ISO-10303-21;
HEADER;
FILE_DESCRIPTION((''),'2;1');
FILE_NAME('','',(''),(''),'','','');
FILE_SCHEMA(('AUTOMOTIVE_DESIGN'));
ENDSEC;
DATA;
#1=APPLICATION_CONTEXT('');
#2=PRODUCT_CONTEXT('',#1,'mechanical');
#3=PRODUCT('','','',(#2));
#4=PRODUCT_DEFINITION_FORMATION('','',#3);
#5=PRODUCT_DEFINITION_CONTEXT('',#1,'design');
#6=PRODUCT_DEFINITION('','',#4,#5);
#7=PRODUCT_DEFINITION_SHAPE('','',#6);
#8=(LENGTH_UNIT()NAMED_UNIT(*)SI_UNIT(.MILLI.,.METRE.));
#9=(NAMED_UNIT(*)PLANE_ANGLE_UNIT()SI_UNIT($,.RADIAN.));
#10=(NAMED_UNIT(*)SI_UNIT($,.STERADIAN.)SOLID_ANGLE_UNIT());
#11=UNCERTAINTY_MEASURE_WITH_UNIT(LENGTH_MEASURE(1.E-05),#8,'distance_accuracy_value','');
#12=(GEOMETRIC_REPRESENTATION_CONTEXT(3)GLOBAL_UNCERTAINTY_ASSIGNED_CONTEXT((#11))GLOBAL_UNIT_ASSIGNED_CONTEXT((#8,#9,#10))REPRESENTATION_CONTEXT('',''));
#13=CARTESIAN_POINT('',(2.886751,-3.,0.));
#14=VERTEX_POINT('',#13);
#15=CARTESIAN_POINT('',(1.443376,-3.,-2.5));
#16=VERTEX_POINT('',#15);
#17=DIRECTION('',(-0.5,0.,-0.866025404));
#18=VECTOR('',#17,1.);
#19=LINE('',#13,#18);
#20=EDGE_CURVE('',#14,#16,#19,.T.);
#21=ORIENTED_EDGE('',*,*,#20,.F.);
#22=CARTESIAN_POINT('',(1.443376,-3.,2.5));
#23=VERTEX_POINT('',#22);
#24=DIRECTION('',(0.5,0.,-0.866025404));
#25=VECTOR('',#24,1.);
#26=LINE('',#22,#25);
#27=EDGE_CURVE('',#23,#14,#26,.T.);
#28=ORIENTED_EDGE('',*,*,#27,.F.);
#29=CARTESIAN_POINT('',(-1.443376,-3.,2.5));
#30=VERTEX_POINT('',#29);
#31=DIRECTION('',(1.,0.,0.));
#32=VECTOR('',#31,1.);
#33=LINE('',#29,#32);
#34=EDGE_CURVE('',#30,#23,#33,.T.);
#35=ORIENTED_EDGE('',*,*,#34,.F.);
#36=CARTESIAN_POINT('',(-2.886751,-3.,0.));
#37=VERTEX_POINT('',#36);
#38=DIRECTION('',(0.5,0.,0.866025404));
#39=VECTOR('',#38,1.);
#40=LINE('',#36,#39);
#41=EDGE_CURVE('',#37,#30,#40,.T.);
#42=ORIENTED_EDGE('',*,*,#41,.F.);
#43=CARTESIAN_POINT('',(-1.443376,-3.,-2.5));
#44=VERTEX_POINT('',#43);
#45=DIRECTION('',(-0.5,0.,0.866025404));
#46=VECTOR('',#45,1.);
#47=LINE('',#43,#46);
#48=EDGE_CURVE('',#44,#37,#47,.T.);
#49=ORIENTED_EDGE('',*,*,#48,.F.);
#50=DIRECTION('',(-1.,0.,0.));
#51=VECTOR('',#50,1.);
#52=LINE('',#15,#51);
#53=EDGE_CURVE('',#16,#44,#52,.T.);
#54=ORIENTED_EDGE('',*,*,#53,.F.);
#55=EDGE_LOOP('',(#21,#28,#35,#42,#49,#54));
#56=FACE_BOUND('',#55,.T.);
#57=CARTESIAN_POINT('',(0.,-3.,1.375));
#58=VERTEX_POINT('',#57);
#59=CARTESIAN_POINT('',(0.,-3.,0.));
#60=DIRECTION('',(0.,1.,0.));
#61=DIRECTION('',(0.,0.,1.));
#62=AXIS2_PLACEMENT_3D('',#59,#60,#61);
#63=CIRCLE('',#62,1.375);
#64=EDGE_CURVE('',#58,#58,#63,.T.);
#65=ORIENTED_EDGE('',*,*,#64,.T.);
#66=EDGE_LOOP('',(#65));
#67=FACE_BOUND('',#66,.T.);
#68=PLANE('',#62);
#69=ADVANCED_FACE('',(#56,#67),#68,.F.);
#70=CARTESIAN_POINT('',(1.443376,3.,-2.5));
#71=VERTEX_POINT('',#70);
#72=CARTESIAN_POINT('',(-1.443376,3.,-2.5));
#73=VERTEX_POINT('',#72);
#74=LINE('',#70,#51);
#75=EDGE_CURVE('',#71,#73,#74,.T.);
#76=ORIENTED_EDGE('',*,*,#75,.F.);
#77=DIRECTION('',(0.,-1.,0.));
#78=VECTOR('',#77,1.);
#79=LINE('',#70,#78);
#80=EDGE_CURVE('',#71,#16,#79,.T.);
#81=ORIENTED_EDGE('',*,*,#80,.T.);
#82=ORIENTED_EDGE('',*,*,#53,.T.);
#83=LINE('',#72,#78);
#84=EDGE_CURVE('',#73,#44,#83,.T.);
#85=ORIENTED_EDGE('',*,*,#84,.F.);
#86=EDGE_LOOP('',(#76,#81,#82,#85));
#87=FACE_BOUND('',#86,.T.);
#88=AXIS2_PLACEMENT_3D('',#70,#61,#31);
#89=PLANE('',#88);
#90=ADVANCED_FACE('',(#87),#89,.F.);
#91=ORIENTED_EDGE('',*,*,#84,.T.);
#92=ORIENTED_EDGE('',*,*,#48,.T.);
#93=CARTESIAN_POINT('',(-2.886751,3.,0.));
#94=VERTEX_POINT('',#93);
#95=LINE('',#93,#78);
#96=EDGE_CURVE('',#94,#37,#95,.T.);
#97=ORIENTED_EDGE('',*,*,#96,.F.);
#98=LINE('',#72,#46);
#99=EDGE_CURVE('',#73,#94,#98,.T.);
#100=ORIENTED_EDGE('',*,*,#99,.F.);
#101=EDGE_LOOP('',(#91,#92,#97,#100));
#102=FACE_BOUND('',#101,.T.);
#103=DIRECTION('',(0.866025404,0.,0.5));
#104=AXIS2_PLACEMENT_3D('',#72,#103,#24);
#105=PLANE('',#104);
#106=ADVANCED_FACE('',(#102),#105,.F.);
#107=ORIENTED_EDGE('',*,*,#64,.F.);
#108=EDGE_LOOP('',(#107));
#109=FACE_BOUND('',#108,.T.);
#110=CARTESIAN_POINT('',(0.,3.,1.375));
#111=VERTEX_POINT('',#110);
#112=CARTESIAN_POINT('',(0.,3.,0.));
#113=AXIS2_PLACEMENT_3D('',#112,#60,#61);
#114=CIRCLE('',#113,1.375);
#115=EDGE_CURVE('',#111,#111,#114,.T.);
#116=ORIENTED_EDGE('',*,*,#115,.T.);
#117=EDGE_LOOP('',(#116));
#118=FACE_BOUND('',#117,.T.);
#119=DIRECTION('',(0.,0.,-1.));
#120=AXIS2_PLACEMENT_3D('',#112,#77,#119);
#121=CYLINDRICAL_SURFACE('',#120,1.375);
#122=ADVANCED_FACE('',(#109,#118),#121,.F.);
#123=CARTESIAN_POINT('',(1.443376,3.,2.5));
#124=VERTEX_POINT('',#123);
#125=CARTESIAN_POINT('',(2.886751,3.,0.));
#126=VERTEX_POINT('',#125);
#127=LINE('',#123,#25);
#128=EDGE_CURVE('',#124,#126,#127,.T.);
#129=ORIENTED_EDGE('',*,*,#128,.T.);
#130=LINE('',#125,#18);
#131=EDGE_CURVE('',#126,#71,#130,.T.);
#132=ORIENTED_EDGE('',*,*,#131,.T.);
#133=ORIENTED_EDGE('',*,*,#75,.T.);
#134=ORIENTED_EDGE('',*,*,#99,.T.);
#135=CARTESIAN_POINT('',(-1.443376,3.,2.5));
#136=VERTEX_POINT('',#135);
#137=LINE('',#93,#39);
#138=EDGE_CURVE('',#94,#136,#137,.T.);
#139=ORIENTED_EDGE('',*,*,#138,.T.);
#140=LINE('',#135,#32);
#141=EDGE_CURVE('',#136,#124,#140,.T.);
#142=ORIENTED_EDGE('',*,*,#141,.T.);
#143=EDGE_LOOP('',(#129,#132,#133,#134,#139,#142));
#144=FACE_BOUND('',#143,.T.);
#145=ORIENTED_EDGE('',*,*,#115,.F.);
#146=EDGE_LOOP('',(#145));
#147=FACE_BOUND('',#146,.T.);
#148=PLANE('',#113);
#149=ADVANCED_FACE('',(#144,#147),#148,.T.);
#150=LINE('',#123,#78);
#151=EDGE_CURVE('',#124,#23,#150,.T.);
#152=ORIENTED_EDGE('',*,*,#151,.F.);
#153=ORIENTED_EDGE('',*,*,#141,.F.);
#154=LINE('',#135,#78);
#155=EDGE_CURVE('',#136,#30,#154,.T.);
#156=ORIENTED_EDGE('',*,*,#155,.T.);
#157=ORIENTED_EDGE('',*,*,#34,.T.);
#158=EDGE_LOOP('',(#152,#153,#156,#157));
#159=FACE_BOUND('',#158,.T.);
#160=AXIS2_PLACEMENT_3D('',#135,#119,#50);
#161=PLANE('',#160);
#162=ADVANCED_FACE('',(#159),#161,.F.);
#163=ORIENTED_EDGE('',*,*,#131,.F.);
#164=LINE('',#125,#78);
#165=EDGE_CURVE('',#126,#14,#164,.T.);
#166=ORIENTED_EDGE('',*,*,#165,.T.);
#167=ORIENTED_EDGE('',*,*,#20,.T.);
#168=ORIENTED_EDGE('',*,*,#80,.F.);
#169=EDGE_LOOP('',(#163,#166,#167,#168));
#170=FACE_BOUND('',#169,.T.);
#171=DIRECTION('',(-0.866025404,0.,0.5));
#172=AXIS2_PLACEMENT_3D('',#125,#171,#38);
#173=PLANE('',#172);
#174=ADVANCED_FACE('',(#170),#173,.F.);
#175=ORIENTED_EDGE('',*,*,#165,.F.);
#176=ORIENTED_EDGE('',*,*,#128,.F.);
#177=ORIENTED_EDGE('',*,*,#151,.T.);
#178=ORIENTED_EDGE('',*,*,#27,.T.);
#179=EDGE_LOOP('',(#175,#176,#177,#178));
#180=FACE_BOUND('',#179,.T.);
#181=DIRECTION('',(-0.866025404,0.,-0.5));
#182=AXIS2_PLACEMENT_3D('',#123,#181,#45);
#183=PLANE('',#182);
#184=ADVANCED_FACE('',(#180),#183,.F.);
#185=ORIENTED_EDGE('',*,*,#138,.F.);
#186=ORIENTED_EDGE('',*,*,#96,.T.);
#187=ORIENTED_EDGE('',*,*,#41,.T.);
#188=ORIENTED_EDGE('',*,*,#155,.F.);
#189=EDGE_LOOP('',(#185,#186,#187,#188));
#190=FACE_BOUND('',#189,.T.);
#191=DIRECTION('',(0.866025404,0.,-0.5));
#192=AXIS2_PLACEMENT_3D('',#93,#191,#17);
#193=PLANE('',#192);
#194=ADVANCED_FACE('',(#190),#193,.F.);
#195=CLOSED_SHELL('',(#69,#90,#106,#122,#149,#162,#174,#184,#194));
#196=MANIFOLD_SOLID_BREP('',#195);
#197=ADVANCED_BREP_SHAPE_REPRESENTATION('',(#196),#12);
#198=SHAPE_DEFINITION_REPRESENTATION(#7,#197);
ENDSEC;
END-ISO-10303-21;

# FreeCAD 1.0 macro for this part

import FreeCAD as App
import Part
import Sketcher

V = App.Vector
Q = App.Units.Quantity


def add_polygon(sketch, points):
    """Adds a closed chain of lines whose ends are joined by coincident constraints."""
    first, n = sketch.GeometryCount, len(points)
    for a, b in zip(points, points[1:] + points[:1]):
        sketch.addGeometry(Part.LineSegment(App.Vector(*a, 0), App.Vector(*b, 0)), False)
    for i in range(n):
        sketch.addConstraint(Sketcher.Constraint("Coincident", first + i, 2, first + (i + 1) % n, 1))

doc = App.newDocument("Part")
body = doc.addObject("PartDesign::Body", "Body")

# Sketch on XZ plane
sketch1 = body.newObject("Sketcher::SketchObject", "Sketch")
sketch1.AttachmentSupport = (doc.getObject("XZ_Plane"), [""])
sketch1.MapMode = "FlatFace"
add_polygon(sketch1, [(2.9, 0), (1.4, -2.5), (-1.4, -2.5), (-2.9, 0), (-1.4, 2.5), (1.4, 2.5)])  # lines 0-5
sketch1.addGeometry(Part.Circle(V(0, 0, 0), V(0, 0, 1), 1.4), False)  # 6
sketch1.addConstraint(Sketcher.Constraint("Horizontal", 1))
sketch1.addConstraint(Sketcher.Constraint("Horizontal", 4))
sketch1.addConstraint(Sketcher.Constraint("Coincident", 6, 3, -1, 1))
sketch1.addConstraint(Sketcher.Constraint("Symmetric", 0, 2, 3, 2, -1, 1))
sketch1.addConstraint(Sketcher.Constraint("Symmetric", 2, 2, 5, 2, -1, 1))
sketch1.addConstraint(Sketcher.Constraint("PointOnObject", 2, 2, -1))
sketch1.addConstraint(Sketcher.Constraint("Parallel", 2, 5))
sketch1.addConstraint(Sketcher.Constraint("Vertical", 1, 2, 3, 2))
sketch1.addConstraint(Sketcher.Constraint("Diameter", 6, 2.75))
sketch1.addConstraint(Sketcher.Constraint("Angle", 0, Q("-120 deg")))
sketch1.addConstraint(Sketcher.Constraint("DistanceY", 1, 2, 3, 2, 5.0))
sketch1.addConstraint(Sketcher.Constraint("DistanceX", 1, 2, 1, 1, 2.886751))
pad1 = body.newObject("PartDesign::Pad", "Pad")
pad1.Profile = sketch1
pad1.Length = 6
pad1.Midplane = True

doc.recompute()
